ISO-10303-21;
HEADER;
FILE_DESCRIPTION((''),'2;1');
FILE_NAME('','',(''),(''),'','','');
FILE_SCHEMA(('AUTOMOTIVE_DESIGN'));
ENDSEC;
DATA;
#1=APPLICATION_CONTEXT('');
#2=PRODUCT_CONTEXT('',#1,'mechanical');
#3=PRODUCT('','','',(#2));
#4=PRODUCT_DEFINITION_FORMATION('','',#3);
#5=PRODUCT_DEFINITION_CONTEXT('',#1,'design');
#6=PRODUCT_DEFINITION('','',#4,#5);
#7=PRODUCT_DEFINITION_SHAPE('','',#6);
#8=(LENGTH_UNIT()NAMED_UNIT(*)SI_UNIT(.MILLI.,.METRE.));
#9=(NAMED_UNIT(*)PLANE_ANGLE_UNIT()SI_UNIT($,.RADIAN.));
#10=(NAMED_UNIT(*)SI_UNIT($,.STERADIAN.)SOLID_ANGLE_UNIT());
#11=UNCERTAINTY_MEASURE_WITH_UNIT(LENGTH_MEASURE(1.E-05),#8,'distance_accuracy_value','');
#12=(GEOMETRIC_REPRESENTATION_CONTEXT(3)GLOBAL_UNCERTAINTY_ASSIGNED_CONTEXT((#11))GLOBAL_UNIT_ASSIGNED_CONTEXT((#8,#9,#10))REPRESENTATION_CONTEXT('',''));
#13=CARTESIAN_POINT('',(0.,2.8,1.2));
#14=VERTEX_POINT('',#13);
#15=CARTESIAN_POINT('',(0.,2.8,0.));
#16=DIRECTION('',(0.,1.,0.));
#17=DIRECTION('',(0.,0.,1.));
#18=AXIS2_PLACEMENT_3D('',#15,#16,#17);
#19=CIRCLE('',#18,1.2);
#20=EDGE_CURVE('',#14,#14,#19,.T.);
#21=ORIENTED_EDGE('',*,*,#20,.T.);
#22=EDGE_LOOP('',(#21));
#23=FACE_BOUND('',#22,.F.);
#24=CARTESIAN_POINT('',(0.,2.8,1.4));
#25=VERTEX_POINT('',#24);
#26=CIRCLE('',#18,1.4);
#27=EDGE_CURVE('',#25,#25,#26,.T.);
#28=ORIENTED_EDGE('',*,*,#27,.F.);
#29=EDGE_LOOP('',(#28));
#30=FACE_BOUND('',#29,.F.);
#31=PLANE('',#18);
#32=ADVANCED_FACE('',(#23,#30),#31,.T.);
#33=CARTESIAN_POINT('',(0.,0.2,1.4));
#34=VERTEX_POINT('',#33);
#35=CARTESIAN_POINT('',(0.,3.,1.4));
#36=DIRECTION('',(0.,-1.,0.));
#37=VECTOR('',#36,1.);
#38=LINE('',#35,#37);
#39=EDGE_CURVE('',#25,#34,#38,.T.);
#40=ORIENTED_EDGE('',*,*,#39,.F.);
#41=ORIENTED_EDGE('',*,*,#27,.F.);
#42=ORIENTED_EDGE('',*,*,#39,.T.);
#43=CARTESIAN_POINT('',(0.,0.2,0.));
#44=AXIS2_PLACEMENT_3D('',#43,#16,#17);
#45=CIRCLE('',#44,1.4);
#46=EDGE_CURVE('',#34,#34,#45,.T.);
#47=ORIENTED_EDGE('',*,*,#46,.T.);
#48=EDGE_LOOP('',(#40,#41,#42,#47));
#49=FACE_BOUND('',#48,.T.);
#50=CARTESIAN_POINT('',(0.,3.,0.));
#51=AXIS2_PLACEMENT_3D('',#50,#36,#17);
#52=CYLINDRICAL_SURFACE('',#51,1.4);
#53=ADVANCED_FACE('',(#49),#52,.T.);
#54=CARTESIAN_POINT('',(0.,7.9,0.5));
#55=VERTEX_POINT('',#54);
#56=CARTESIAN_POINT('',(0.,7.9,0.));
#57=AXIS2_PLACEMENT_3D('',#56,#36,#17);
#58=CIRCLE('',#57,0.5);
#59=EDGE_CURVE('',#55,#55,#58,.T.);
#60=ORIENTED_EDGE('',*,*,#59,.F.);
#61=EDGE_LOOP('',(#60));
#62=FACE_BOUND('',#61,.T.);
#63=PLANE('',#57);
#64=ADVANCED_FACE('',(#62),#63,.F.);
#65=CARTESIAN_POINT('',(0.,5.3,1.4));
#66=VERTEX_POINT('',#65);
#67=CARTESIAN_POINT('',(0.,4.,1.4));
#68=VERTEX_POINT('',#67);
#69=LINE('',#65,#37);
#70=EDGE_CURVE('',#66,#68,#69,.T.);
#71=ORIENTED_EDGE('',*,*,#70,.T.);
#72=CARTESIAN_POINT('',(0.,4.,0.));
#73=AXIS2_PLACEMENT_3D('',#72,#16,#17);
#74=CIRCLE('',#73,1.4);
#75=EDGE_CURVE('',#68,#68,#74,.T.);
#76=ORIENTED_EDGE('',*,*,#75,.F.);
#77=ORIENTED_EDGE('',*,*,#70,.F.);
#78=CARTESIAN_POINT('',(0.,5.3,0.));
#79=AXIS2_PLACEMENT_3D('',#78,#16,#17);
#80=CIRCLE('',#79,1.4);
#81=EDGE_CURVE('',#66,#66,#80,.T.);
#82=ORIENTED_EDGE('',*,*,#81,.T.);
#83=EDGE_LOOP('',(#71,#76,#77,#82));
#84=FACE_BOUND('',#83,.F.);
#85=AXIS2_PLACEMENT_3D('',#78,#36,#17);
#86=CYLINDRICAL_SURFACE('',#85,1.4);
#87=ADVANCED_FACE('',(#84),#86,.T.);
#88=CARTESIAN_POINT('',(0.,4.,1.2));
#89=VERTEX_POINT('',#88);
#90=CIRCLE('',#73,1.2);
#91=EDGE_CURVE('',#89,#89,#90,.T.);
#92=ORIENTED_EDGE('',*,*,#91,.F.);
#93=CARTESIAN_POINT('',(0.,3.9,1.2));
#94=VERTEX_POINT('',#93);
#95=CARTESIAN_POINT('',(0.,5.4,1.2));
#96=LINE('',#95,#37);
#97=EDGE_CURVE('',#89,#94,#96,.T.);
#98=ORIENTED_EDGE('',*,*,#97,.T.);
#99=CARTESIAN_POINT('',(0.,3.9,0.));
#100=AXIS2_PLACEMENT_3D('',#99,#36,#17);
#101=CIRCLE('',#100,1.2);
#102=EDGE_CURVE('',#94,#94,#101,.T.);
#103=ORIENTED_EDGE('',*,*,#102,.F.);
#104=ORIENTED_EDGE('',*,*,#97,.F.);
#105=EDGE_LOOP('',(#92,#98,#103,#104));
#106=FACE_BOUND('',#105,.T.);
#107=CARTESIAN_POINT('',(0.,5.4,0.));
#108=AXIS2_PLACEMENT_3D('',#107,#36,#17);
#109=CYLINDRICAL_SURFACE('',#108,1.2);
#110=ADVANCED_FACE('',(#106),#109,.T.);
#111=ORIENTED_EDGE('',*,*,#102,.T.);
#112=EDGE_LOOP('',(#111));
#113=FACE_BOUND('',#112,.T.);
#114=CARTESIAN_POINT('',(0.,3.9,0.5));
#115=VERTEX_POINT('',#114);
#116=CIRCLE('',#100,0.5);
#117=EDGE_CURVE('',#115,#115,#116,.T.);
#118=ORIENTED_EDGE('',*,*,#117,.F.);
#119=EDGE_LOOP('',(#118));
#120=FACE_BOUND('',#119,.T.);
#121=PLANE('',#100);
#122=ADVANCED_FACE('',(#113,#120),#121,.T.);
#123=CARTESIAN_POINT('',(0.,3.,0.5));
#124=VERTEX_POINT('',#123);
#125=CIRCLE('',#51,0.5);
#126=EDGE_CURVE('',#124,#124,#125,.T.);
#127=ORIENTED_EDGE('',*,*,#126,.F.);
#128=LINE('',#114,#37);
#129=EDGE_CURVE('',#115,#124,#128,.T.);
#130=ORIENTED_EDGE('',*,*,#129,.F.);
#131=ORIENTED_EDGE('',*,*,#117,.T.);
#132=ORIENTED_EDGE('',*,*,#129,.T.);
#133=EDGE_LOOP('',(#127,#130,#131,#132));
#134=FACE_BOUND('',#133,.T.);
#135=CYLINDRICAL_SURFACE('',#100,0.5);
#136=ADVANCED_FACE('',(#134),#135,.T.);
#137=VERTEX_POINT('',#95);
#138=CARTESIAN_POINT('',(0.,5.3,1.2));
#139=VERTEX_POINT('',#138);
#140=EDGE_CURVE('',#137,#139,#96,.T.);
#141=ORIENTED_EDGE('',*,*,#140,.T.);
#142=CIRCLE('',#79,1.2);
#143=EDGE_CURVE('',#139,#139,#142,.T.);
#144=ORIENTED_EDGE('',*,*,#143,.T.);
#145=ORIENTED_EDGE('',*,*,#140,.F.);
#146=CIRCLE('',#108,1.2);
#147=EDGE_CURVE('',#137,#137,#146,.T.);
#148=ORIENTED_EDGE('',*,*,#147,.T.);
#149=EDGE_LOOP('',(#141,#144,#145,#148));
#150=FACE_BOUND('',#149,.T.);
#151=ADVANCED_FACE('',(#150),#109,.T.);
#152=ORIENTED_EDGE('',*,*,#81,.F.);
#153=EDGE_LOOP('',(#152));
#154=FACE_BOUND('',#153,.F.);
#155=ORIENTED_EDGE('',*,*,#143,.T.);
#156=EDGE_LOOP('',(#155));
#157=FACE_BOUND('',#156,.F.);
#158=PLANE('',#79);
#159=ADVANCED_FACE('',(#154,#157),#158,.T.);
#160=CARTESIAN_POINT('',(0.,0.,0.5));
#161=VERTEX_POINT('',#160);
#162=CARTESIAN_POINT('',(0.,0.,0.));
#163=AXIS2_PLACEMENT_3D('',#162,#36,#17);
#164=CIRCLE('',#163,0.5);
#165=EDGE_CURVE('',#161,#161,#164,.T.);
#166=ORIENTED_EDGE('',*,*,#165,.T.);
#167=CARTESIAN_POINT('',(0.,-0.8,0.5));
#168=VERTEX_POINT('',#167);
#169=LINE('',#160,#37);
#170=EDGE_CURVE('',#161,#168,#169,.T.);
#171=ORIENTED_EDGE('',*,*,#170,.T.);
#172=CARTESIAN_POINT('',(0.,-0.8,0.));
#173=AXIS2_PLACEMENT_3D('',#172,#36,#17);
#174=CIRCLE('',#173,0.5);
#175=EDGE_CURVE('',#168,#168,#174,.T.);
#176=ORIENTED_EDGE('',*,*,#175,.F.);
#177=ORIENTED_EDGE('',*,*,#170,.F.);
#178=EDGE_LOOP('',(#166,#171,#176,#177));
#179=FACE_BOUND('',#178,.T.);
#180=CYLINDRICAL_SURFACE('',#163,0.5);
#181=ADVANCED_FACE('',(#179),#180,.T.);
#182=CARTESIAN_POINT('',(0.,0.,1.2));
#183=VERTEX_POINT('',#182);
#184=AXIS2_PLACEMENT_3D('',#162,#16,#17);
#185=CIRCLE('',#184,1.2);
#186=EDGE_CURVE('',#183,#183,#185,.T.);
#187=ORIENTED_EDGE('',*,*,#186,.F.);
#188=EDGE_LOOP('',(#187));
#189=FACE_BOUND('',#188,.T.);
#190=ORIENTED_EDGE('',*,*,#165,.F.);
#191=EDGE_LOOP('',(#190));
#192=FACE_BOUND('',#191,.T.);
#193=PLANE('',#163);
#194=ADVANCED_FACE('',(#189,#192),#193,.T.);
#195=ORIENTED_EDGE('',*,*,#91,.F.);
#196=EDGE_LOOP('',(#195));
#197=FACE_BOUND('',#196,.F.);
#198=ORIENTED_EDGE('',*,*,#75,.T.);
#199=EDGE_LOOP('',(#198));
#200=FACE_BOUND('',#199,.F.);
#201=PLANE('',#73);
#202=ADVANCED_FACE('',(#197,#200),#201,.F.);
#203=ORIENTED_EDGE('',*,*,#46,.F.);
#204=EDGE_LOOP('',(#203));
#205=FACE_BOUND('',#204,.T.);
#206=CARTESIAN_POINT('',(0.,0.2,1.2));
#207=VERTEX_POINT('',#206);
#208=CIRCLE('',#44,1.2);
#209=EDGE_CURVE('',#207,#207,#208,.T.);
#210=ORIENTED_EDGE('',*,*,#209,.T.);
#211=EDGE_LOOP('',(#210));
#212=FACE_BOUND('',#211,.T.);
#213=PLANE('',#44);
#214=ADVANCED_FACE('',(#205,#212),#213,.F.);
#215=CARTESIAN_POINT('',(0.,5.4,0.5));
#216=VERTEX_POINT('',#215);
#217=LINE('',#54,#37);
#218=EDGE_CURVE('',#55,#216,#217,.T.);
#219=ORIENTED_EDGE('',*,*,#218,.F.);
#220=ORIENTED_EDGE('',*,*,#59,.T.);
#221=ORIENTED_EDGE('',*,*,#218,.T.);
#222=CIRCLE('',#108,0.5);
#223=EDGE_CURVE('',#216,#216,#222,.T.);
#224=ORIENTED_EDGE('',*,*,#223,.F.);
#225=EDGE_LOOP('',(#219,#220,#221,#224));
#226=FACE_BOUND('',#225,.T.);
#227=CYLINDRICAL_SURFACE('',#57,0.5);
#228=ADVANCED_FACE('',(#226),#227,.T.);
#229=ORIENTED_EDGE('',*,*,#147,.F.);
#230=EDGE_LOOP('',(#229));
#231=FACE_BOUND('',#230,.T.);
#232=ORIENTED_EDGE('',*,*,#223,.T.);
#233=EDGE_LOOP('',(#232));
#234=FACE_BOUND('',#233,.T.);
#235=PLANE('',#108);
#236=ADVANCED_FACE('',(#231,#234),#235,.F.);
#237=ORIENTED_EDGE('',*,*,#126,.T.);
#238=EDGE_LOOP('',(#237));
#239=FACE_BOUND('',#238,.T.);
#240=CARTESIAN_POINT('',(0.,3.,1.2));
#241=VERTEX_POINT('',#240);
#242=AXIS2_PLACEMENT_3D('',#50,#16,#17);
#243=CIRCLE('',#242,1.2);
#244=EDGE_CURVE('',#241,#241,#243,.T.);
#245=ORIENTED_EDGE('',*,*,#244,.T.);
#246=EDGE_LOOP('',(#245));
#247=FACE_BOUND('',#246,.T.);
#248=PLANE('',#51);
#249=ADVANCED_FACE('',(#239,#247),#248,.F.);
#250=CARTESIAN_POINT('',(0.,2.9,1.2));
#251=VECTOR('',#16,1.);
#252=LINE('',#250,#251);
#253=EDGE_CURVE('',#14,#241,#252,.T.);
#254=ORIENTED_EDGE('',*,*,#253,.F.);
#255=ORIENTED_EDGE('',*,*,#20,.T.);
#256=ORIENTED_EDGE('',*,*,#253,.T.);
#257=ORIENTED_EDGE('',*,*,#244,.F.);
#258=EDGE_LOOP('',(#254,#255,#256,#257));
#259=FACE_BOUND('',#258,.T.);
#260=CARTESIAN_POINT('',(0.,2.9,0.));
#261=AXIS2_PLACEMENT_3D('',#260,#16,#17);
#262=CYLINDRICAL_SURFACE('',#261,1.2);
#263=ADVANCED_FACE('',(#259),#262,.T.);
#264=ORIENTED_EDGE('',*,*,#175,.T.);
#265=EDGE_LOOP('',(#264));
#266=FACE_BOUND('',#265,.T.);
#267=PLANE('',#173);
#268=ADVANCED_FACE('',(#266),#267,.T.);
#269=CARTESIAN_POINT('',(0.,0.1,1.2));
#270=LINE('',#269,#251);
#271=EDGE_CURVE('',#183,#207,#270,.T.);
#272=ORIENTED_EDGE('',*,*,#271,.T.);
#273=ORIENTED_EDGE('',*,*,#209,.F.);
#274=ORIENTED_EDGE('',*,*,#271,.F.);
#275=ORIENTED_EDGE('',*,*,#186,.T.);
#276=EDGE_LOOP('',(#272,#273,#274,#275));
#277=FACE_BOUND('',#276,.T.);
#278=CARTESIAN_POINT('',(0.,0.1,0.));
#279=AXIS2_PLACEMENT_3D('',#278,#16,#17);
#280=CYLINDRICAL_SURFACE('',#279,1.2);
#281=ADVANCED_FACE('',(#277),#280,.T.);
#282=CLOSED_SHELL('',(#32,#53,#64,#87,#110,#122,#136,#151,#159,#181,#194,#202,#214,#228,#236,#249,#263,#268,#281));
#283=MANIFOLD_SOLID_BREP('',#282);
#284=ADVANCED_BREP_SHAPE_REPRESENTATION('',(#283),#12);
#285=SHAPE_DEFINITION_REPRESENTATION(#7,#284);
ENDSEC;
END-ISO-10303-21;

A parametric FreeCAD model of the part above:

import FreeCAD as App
import Part
import Sketcher

V = App.Vector


def add_polygon(sketch, points):
    """Adds a closed chain of lines whose ends are joined by coincident constraints."""
    first, n = sketch.GeometryCount, len(points)
    for a, b in zip(points, points[1:] + points[:1]):
        sketch.addGeometry(Part.LineSegment(App.Vector(*a, 0), App.Vector(*b, 0)), False)
    for i in range(n):
        sketch.addConstraint(Sketcher.Constraint("Coincident", first + i, 2, first + (i + 1) % n, 1))

doc = App.newDocument("Part")
body = doc.addObject("PartDesign::Body", "Body")

# Sketch on YZ plane
sketch1 = body.newObject("Sketcher::SketchObject", "Sketch")
sketch1.AttachmentSupport = (doc.getObject("YZ_Plane"), [""])
sketch1.MapMode = "FlatFace"
add_polygon(sketch1, [(-0.8, 0.5), (-0.8, 0), (7.9, 0), (7.9, 0.5), (5.4, 0.5), (5.4, 1.2), (3.9, 1.2), (3.9, 0.5), (3, 0.5), (3, 1.4), (0, 1.4), (0, 0.5)])  # lines 0-11
sketch1.addConstraint([
    Sketcher.Constraint("Vertical", 0),
    Sketcher.Constraint("Horizontal", 1),
    Sketcher.Constraint("Vertical", 2),
    Sketcher.Constraint("Horizontal", 3),
    Sketcher.Constraint("Vertical", 4),
    Sketcher.Constraint("Horizontal", 5),
    Sketcher.Constraint("Vertical", 6),
    Sketcher.Constraint("Horizontal", 7),
    Sketcher.Constraint("Vertical", 8),
    Sketcher.Constraint("Horizontal", 9),
    Sketcher.Constraint("Vertical", 10),
    Sketcher.Constraint("Horizontal", 11),
    Sketcher.Constraint("PointOnObject", 0, 2, -1),
    Sketcher.Constraint("PointOnObject", 9, 2, -2),
    Sketcher.Constraint("Horizontal", 3, 2, 6, 2),
    Sketcher.Constraint("Horizontal", 7, 2, 10, 2),
    Sketcher.Constraint("Equal", 7, 8),
    Sketcher.Constraint("DistanceX", 9, 2, 9, 1, 3.0),
    Sketcher.Constraint("DistanceX", 1, 1, 1, 2, 8.7),
    Sketcher.Constraint("DistanceX", 3, 2, 3, 1, 2.5),
    Sketcher.Constraint("DistanceX", 5, 2, 5, 1, 1.5),
    Sketcher.Constraint("DistanceX", 7, 2, 7, 1, 0.9),
    Sketcher.Constraint("DistanceY", 0, 2, 0, 1, 0.5),
    Sketcher.Constraint("DistanceY", 4, 1, 4, 2, 0.7),
])
revolution = body.newObject("PartDesign::Revolution", "Revolution")
revolution.Profile = sketch1
revolution.ReferenceAxis = (sketch1, ["H_Axis"])
revolution.Angle = 360

# Sketch on YZ plane
sketch2 = body.newObject("Sketcher::SketchObject", "Sketch001")
sketch2.AttachmentSupport = (doc.getObject("YZ_Plane"), [""])
sketch2.MapMode = "FlatFace"
add_polygon(sketch2, [(2.8, 1.4), (2.8, 1.2), (3, 1.2), (3, 1.4)])  # lines 0-3
add_polygon(sketch2, [(0, 1.4), (0, 1.2), (0.2, 1.2), (0.2, 1.4)])  # lines 4-7
sketch2.addConstraint([
    Sketcher.Constraint("Vertical", 0),
    Sketcher.Constraint("Horizontal", 1),
    Sketcher.Constraint("Vertical", 2),
    Sketcher.Constraint("Horizontal", 3),
    Sketcher.Constraint("Vertical", 4),
    Sketcher.Constraint("Horizontal", 5),
    Sketcher.Constraint("Vertical", 6),
    Sketcher.Constraint("Horizontal", 7),
    Sketcher.Constraint("PointOnObject", 4, 2, -2),
    Sketcher.Constraint("Horizontal", 1, 2, 4, 2),
    Sketcher.Constraint("Horizontal", 3, 2, 6, 2),
    Sketcher.Constraint("Equal", 3, 5),
    Sketcher.Constraint("Equal", 7, 0),
    Sketcher.Constraint("DistanceX", 1, 1, 1, 2, 0.2),
    Sketcher.Constraint("DistanceX", -1, 1, 1, 2, 3.0),
    Sketcher.Constraint("DistanceY", -1, 1, 0, 2, 1.2),
])
groove = body.newObject("PartDesign::Groove", "Groove")
groove.Profile = sketch2
groove.ReferenceAxis = (sketch2, ["H_Axis"])
groove.Angle = 360

# Sketch on YZ plane
sketch3 = body.newObject("Sketcher::SketchObject", "Sketch002")
sketch3.AttachmentSupport = (doc.getObject("YZ_Plane"), [""])
sketch3.MapMode = "FlatFace"
add_polygon(sketch3, [(4, 1.4), (4, 1.2), (5.3, 1.2), (5.3, 1.4)])  # lines 0-3
sketch3.addConstraint([
    Sketcher.Constraint("Vertical", 0),
    Sketcher.Constraint("Horizontal", 1),
    Sketcher.Constraint("Vertical", 2),
    Sketcher.Constraint("Horizontal", 3),
    Sketcher.Constraint("DistanceX", 1, 1, 1, 2, 1.3),
    Sketcher.Constraint("DistanceY", 0, 2, 0, 1, 0.2),
    Sketcher.Constraint("DistanceX", -1, 1, 0, 2, 4.0),
    Sketcher.Constraint("DistanceY", -1, 1, 0, 2, 1.2),
])
revolution2 = body.newObject("PartDesign::Revolution", "Revolution001")
revolution2.Profile = sketch3
revolution2.ReferenceAxis = (sketch3, ["H_Axis"])
revolution2.Angle = 360

doc.recompute()
